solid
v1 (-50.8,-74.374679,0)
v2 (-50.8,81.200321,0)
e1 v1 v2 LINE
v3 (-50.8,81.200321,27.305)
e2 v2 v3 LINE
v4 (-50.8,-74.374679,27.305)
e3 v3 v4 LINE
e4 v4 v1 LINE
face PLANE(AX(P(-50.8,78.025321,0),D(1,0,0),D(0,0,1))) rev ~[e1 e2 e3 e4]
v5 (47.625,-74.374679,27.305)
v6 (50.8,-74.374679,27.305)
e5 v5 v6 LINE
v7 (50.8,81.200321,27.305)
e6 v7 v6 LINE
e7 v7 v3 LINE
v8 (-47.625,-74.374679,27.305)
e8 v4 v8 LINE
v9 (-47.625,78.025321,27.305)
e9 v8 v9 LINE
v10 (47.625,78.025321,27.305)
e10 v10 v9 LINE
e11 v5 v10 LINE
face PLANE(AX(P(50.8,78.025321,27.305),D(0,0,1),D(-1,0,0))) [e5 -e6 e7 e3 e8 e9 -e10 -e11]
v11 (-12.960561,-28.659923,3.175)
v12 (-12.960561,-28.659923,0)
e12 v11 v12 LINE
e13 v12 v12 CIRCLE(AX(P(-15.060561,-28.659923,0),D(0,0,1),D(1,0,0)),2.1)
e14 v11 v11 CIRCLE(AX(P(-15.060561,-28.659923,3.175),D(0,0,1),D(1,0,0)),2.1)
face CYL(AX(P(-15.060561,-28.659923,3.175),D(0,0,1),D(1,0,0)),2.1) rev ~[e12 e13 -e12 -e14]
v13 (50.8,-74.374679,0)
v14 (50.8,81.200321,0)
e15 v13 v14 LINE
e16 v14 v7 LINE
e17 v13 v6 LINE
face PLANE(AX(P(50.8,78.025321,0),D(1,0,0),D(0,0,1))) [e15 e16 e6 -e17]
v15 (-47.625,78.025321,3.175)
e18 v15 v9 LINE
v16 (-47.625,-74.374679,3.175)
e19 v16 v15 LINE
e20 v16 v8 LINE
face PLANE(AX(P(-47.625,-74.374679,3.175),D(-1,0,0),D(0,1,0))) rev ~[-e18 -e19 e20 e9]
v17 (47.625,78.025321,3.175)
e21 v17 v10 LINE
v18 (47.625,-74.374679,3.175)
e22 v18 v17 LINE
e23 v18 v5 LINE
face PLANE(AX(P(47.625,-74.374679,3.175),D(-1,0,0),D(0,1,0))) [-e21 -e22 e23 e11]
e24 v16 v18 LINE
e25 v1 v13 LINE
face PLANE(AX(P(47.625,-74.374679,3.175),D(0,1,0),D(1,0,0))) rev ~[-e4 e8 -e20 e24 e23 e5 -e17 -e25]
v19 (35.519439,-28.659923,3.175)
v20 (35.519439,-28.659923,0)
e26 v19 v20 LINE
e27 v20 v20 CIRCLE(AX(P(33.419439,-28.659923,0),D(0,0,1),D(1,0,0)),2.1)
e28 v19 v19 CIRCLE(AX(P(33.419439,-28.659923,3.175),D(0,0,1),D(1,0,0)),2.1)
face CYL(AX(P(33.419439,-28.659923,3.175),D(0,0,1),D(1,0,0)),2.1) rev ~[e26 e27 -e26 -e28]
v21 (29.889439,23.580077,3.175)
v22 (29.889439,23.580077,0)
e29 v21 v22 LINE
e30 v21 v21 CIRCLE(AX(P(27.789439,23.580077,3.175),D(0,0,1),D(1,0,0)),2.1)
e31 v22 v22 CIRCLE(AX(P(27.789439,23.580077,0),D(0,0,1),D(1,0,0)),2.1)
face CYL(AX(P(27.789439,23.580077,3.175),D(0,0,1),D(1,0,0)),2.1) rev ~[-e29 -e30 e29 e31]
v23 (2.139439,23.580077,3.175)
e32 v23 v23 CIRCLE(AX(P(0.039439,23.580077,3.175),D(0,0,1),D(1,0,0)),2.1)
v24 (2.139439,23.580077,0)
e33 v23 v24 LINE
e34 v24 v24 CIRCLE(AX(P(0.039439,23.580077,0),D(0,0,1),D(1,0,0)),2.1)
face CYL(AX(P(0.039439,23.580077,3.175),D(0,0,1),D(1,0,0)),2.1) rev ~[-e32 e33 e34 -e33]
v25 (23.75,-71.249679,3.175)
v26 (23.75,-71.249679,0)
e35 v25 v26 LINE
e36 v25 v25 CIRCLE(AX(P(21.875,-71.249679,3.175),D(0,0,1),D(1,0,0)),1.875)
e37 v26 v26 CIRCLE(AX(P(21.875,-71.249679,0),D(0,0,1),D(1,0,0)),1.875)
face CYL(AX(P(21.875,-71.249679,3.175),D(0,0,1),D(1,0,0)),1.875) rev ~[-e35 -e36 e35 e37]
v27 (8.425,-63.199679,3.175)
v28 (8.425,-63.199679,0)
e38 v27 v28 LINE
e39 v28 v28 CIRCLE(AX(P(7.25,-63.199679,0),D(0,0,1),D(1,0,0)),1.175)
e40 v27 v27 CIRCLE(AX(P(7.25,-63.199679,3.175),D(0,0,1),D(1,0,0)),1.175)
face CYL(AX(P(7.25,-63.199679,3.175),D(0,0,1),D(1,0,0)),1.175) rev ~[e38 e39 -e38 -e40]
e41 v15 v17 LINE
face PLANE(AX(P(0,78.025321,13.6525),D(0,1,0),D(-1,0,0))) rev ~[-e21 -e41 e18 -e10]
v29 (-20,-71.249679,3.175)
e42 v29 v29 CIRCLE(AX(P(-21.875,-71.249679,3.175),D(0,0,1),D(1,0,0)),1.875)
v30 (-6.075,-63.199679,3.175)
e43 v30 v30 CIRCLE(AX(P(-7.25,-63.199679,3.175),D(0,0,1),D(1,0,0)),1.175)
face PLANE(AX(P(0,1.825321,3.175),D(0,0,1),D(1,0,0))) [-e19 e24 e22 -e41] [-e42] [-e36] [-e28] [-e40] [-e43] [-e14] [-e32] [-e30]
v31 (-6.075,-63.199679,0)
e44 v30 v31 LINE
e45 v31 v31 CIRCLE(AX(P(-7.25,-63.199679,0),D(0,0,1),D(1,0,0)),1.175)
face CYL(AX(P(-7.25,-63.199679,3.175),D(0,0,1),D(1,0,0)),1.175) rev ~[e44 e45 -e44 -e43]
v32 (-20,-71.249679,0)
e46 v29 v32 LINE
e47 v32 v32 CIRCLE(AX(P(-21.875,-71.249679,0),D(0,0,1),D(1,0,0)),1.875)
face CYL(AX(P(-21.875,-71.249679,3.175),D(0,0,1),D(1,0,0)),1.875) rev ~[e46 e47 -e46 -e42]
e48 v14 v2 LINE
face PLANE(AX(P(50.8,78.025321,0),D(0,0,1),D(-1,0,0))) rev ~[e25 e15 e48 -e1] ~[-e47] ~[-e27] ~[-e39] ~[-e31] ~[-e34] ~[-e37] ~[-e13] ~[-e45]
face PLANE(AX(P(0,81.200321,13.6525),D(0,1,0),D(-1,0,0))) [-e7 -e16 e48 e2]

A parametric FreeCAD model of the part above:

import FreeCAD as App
import Part
import Sketcher
Q = App.Units.Quantity

doc = App.newDocument("Part")
body = doc.addObject("PartDesign::Body", "Body")

# Sketch on XY plane
sketch1 = body.newObject("Sketcher::SketchObject", "Sketch")
sketch1.AttachmentSupport = (doc.getObject("XY_Plane"), [""])
sketch1.MapMode = "FlatFace"
sketch1.addGeometry([
    Part.LineSegment(App.Vector(-51, 78, 0), App.Vector(-51, -74, 0)),
    Part.LineSegment(App.Vector(-51, -74, 0), App.Vector(51, -74, 0)),
    Part.LineSegment(App.Vector(51, -74, 0), App.Vector(51, 78, 0)),
    Part.LineSegment(App.Vector(51, 78, 0), App.Vector(-51, 78, 0)),
], False)
sketch1.addConstraint([
    Sketcher.Constraint("Coincident", 0, 2, 1, 1),
    Sketcher.Constraint("Coincident", 1, 2, 2, 1),
    Sketcher.Constraint("Coincident", 2, 2, 3, 1),
    Sketcher.Constraint("Coincident", 3, 2, 0, 1),
    Sketcher.Constraint("Vertical", 0),
    Sketcher.Constraint("Horizontal", 1),
    Sketcher.Constraint("Vertical", 2),
    Sketcher.Constraint("Horizontal", 3),
    Sketcher.Constraint("DistanceX", 1, 1, 1, 2, Q("4 in")),
    Sketcher.Constraint("DistanceY", 0, 2, 0, 1, Q("6 in")),
    Sketcher.Constraint("DistanceX", 0, 2, -1, 1, Q("2 in")),
    Sketcher.Constraint("DistanceY", 0, 2, -1, 1, 74.374679),
])
pad1 = body.newObject("PartDesign::Pad", "Pad")
pad1.Profile = sketch1
pad1.Length = Q("0.125 in")

# Sketch on XY plane
sketch2 = body.newObject("Sketcher::SketchObject", "Sketch001")
sketch2.AttachmentSupport = (doc.getObject("XY_Plane"), [""])
sketch2.MapMode = "FlatFace"
sketch2.AttachmentOffset = App.Placement(App.Vector(0, 0, 0.125 * 25.4), App.Rotation())
sketch2.addGeometry([
    Part.LineSegment(App.Vector(47.6, 78, 0), App.Vector(47.6, -74.4, 0)),  # 0
    Part.LineSegment(App.Vector(47.6, -74.4, 0), App.Vector(50.8, -74.4, 0)),  # 1
    Part.LineSegment(App.Vector(50.8, -74.4, 0), App.Vector(50.8, 78, 0)),  # 2
    Part.LineSegment(App.Vector(50.8, 78, 0), App.Vector(47.6, 78, 0)),  # 3
    Part.LineSegment(App.Vector(-50.8, 78, 0), App.Vector(-50.8, -74.4, 0)),  # 4
    Part.LineSegment(App.Vector(-50.8, -74.4, 0), App.Vector(-47.6, -74.4, 0)),  # 5
    Part.LineSegment(App.Vector(-47.6, -74.4, 0), App.Vector(-47.6, 78, 0)),  # 6
    Part.LineSegment(App.Vector(-47.6, 78, 0), App.Vector(-50.8, 78, 0)),  # 7
], False)
sketch2.addConstraint([
    Sketcher.Constraint("Coincident", 0, 2, 1, 1),
    Sketcher.Constraint("Coincident", 1, 2, 2, 1),
    Sketcher.Constraint("Coincident", 2, 2, 3, 1),
    Sketcher.Constraint("Coincident", 3, 2, 0, 1),
    Sketcher.Constraint("Coincident", 4, 2, 5, 1),
    Sketcher.Constraint("Coincident", 5, 2, 6, 1),
    Sketcher.Constraint("Coincident", 6, 2, 7, 1),
    Sketcher.Constraint("Coincident", 7, 2, 4, 1),
    Sketcher.Constraint("Vertical", 0),
    Sketcher.Constraint("Horizontal", 1),
    Sketcher.Constraint("Vertical", 2),
    Sketcher.Constraint("Horizontal", 3),
    Sketcher.Constraint("Vertical", 4),
    Sketcher.Constraint("Horizontal", 5),
    Sketcher.Constraint("Vertical", 6),
    Sketcher.Constraint("Horizontal", 7),
    Sketcher.Constraint("Symmetric", 1, 2, 4, 2, -2),
    Sketcher.Constraint("Symmetric", 3, 2, 6, 2, -2),
    Sketcher.Constraint("DistanceY", 0, 2, 0, 1, Q("6 in")),
    Sketcher.Constraint("DistanceX", -1, 1, 1, 2, Q("2 in")),
    Sketcher.Constraint("DistanceX", 1, 1, 1, 2, Q("0.125 in")),
    Sketcher.Constraint("DistanceY", 0, 2, -1, 1, 74.374679),
])
pad2 = body.newObject("PartDesign::Pad", "Pad001")
pad2.Profile = sketch2
pad2.Length = Q("0.95 in")

# Sketch on XZ plane
sketch3 = body.newObject("Sketcher::SketchObject", "Sketch002")
sketch3.AttachmentSupport = (doc.getObject("XZ_Plane"), [""])
sketch3.MapMode = "FlatFace"
sketch3.AttachmentOffset = App.Placement(App.Vector(0, 0, -78.025321), App.Rotation())
sketch3.addGeometry([
    Part.LineSegment(App.Vector(51, 27, 0), App.Vector(51, 0, 0)),
    Part.LineSegment(App.Vector(51, 0, 0), App.Vector(-51, 0, 0)),
    Part.LineSegment(App.Vector(-51, 0, 0), App.Vector(-51, 27, 0)),
    Part.LineSegment(App.Vector(-51, 27, 0), App.Vector(51, 27, 0)),
], False)
sketch3.addConstraint([
    Sketcher.Constraint("Coincident", 0, 2, 1, 1),
    Sketcher.Constraint("Coincident", 1, 2, 2, 1),
    Sketcher.Constraint("Coincident", 2, 2, 3, 1),
    Sketcher.Constraint("Coincident", 3, 2, 0, 1),
    Sketcher.Constraint("Vertical", 0),
    Sketcher.Constraint("Horizontal", 1),
    Sketcher.Constraint("Vertical", 2),
    Sketcher.Constraint("Horizontal", 3),
    Sketcher.Constraint("Symmetric", 0, 2, 1, 2, -1, 1),
    Sketcher.Constraint("DistanceX", 1, 2, 1, 1, Q("4 in")),
    Sketcher.Constraint("DistanceY", 0, 2, 0, 1, Q("1.075 in")),
])
pad3 = body.newObject("PartDesign::Pad", "Pad002")
pad3.Profile = sketch3
pad3.Length = Q("0.125 in")
pad3.Reversed = True

# Sketch on XY plane
sketch4 = body.newObject("Sketcher::SketchObject", "Sketch003")
sketch4.AttachmentSupport = (doc.getObject("XY_Plane"), [""])
sketch4.MapMode = "FlatFace"
sketch4.AttachmentOffset = App.Placement(App.Vector(0, 0, 0.125 * 25.4), App.Rotation())
sketch4.addGeometry([
    Part.Circle(App.Vector(-21.9, -71.2, 0), App.Vector(0, 0, 1), 1.9),  # 0
    Part.Circle(App.Vector(21.9, -71.2, 0), App.Vector(0, 0, 1), 1.9),  # 1
    Part.Circle(App.Vector(-7.2, -63.2, 0), App.Vector(0, 0, 1), 1.2),  # 2
    Part.Circle(App.Vector(7.2, -63.2, 0), App.Vector(0, 0, 1), 1.2),  # 3
    Part.Circle(App.Vector(-15.1, -28.7, 0), App.Vector(0, 0, 1), 2.1),  # 4
    Part.Circle(App.Vector(27.8, 23.6, 0), App.Vector(0, 0, 1), 2.1),  # 5
    Part.Circle(App.Vector(0, 23.6, 0), App.Vector(0, 0, 1), 2.1),  # 6
    Part.Circle(App.Vector(33.4, -28.7, 0), App.Vector(0, 0, 1), 2.1),  # 7
], False)
sketch4.addConstraint([
    Sketcher.Constraint("Equal", 0, 1),
    Sketcher.Constraint("Equal", 2, 3),
    Sketcher.Constraint("Equal", 4, 5),
    Sketcher.Constraint("Equal", 5, 6),
    Sketcher.Constraint("Equal", 6, 7),
    Sketcher.Constraint("Symmetric", 0, 3, 1, 3, -2),
    Sketcher.Constraint("Symmetric", 2, 3, 3, 3, -2),
    Sketcher.Constraint("Horizontal", 5, 3, 6, 3),
    Sketcher.Constraint("Horizontal", 4, 3, 7, 3),
    Sketcher.Constraint("Diameter", 0, 3.75),
    Sketcher.Constraint("Diameter", 2, 2.35),
    Sketcher.Constraint("Diameter", 4, 4.2),
    Sketcher.Constraint("DistanceX", 0, 3, -1, 1, 21.875),
    Sketcher.Constraint("DistanceX", 2, 3, -1, 1, 7.25),
    Sketcher.Constraint("DistanceY", 0, 3, 2, 3, 8.05),
    Sketcher.Constraint("DistanceX", 4, 3, 5, 3, 42.85),
    Sketcher.Constraint("DistanceY", 4, 3, 5, 3, 52.24),
    Sketcher.Constraint("DistanceX", 6, 3, 5, 3, 27.75),
    Sketcher.Constraint("DistanceX", 4, 3, 7, 3, 48.48),
    Sketcher.Constraint("DistanceY", 0, 3, -1, 1, 71.249679),
    Sketcher.Constraint("DistanceX", 4, 3, -1, 1, 15.060561),
    Sketcher.Constraint("DistanceY", 4, 3, -1, 1, 28.659923),
])
pocket1 = body.newObject("PartDesign::Pocket", "Pocket")
pocket1.Profile = sketch4
pocket1.Type = "ThroughAll"

doc.recompute()
